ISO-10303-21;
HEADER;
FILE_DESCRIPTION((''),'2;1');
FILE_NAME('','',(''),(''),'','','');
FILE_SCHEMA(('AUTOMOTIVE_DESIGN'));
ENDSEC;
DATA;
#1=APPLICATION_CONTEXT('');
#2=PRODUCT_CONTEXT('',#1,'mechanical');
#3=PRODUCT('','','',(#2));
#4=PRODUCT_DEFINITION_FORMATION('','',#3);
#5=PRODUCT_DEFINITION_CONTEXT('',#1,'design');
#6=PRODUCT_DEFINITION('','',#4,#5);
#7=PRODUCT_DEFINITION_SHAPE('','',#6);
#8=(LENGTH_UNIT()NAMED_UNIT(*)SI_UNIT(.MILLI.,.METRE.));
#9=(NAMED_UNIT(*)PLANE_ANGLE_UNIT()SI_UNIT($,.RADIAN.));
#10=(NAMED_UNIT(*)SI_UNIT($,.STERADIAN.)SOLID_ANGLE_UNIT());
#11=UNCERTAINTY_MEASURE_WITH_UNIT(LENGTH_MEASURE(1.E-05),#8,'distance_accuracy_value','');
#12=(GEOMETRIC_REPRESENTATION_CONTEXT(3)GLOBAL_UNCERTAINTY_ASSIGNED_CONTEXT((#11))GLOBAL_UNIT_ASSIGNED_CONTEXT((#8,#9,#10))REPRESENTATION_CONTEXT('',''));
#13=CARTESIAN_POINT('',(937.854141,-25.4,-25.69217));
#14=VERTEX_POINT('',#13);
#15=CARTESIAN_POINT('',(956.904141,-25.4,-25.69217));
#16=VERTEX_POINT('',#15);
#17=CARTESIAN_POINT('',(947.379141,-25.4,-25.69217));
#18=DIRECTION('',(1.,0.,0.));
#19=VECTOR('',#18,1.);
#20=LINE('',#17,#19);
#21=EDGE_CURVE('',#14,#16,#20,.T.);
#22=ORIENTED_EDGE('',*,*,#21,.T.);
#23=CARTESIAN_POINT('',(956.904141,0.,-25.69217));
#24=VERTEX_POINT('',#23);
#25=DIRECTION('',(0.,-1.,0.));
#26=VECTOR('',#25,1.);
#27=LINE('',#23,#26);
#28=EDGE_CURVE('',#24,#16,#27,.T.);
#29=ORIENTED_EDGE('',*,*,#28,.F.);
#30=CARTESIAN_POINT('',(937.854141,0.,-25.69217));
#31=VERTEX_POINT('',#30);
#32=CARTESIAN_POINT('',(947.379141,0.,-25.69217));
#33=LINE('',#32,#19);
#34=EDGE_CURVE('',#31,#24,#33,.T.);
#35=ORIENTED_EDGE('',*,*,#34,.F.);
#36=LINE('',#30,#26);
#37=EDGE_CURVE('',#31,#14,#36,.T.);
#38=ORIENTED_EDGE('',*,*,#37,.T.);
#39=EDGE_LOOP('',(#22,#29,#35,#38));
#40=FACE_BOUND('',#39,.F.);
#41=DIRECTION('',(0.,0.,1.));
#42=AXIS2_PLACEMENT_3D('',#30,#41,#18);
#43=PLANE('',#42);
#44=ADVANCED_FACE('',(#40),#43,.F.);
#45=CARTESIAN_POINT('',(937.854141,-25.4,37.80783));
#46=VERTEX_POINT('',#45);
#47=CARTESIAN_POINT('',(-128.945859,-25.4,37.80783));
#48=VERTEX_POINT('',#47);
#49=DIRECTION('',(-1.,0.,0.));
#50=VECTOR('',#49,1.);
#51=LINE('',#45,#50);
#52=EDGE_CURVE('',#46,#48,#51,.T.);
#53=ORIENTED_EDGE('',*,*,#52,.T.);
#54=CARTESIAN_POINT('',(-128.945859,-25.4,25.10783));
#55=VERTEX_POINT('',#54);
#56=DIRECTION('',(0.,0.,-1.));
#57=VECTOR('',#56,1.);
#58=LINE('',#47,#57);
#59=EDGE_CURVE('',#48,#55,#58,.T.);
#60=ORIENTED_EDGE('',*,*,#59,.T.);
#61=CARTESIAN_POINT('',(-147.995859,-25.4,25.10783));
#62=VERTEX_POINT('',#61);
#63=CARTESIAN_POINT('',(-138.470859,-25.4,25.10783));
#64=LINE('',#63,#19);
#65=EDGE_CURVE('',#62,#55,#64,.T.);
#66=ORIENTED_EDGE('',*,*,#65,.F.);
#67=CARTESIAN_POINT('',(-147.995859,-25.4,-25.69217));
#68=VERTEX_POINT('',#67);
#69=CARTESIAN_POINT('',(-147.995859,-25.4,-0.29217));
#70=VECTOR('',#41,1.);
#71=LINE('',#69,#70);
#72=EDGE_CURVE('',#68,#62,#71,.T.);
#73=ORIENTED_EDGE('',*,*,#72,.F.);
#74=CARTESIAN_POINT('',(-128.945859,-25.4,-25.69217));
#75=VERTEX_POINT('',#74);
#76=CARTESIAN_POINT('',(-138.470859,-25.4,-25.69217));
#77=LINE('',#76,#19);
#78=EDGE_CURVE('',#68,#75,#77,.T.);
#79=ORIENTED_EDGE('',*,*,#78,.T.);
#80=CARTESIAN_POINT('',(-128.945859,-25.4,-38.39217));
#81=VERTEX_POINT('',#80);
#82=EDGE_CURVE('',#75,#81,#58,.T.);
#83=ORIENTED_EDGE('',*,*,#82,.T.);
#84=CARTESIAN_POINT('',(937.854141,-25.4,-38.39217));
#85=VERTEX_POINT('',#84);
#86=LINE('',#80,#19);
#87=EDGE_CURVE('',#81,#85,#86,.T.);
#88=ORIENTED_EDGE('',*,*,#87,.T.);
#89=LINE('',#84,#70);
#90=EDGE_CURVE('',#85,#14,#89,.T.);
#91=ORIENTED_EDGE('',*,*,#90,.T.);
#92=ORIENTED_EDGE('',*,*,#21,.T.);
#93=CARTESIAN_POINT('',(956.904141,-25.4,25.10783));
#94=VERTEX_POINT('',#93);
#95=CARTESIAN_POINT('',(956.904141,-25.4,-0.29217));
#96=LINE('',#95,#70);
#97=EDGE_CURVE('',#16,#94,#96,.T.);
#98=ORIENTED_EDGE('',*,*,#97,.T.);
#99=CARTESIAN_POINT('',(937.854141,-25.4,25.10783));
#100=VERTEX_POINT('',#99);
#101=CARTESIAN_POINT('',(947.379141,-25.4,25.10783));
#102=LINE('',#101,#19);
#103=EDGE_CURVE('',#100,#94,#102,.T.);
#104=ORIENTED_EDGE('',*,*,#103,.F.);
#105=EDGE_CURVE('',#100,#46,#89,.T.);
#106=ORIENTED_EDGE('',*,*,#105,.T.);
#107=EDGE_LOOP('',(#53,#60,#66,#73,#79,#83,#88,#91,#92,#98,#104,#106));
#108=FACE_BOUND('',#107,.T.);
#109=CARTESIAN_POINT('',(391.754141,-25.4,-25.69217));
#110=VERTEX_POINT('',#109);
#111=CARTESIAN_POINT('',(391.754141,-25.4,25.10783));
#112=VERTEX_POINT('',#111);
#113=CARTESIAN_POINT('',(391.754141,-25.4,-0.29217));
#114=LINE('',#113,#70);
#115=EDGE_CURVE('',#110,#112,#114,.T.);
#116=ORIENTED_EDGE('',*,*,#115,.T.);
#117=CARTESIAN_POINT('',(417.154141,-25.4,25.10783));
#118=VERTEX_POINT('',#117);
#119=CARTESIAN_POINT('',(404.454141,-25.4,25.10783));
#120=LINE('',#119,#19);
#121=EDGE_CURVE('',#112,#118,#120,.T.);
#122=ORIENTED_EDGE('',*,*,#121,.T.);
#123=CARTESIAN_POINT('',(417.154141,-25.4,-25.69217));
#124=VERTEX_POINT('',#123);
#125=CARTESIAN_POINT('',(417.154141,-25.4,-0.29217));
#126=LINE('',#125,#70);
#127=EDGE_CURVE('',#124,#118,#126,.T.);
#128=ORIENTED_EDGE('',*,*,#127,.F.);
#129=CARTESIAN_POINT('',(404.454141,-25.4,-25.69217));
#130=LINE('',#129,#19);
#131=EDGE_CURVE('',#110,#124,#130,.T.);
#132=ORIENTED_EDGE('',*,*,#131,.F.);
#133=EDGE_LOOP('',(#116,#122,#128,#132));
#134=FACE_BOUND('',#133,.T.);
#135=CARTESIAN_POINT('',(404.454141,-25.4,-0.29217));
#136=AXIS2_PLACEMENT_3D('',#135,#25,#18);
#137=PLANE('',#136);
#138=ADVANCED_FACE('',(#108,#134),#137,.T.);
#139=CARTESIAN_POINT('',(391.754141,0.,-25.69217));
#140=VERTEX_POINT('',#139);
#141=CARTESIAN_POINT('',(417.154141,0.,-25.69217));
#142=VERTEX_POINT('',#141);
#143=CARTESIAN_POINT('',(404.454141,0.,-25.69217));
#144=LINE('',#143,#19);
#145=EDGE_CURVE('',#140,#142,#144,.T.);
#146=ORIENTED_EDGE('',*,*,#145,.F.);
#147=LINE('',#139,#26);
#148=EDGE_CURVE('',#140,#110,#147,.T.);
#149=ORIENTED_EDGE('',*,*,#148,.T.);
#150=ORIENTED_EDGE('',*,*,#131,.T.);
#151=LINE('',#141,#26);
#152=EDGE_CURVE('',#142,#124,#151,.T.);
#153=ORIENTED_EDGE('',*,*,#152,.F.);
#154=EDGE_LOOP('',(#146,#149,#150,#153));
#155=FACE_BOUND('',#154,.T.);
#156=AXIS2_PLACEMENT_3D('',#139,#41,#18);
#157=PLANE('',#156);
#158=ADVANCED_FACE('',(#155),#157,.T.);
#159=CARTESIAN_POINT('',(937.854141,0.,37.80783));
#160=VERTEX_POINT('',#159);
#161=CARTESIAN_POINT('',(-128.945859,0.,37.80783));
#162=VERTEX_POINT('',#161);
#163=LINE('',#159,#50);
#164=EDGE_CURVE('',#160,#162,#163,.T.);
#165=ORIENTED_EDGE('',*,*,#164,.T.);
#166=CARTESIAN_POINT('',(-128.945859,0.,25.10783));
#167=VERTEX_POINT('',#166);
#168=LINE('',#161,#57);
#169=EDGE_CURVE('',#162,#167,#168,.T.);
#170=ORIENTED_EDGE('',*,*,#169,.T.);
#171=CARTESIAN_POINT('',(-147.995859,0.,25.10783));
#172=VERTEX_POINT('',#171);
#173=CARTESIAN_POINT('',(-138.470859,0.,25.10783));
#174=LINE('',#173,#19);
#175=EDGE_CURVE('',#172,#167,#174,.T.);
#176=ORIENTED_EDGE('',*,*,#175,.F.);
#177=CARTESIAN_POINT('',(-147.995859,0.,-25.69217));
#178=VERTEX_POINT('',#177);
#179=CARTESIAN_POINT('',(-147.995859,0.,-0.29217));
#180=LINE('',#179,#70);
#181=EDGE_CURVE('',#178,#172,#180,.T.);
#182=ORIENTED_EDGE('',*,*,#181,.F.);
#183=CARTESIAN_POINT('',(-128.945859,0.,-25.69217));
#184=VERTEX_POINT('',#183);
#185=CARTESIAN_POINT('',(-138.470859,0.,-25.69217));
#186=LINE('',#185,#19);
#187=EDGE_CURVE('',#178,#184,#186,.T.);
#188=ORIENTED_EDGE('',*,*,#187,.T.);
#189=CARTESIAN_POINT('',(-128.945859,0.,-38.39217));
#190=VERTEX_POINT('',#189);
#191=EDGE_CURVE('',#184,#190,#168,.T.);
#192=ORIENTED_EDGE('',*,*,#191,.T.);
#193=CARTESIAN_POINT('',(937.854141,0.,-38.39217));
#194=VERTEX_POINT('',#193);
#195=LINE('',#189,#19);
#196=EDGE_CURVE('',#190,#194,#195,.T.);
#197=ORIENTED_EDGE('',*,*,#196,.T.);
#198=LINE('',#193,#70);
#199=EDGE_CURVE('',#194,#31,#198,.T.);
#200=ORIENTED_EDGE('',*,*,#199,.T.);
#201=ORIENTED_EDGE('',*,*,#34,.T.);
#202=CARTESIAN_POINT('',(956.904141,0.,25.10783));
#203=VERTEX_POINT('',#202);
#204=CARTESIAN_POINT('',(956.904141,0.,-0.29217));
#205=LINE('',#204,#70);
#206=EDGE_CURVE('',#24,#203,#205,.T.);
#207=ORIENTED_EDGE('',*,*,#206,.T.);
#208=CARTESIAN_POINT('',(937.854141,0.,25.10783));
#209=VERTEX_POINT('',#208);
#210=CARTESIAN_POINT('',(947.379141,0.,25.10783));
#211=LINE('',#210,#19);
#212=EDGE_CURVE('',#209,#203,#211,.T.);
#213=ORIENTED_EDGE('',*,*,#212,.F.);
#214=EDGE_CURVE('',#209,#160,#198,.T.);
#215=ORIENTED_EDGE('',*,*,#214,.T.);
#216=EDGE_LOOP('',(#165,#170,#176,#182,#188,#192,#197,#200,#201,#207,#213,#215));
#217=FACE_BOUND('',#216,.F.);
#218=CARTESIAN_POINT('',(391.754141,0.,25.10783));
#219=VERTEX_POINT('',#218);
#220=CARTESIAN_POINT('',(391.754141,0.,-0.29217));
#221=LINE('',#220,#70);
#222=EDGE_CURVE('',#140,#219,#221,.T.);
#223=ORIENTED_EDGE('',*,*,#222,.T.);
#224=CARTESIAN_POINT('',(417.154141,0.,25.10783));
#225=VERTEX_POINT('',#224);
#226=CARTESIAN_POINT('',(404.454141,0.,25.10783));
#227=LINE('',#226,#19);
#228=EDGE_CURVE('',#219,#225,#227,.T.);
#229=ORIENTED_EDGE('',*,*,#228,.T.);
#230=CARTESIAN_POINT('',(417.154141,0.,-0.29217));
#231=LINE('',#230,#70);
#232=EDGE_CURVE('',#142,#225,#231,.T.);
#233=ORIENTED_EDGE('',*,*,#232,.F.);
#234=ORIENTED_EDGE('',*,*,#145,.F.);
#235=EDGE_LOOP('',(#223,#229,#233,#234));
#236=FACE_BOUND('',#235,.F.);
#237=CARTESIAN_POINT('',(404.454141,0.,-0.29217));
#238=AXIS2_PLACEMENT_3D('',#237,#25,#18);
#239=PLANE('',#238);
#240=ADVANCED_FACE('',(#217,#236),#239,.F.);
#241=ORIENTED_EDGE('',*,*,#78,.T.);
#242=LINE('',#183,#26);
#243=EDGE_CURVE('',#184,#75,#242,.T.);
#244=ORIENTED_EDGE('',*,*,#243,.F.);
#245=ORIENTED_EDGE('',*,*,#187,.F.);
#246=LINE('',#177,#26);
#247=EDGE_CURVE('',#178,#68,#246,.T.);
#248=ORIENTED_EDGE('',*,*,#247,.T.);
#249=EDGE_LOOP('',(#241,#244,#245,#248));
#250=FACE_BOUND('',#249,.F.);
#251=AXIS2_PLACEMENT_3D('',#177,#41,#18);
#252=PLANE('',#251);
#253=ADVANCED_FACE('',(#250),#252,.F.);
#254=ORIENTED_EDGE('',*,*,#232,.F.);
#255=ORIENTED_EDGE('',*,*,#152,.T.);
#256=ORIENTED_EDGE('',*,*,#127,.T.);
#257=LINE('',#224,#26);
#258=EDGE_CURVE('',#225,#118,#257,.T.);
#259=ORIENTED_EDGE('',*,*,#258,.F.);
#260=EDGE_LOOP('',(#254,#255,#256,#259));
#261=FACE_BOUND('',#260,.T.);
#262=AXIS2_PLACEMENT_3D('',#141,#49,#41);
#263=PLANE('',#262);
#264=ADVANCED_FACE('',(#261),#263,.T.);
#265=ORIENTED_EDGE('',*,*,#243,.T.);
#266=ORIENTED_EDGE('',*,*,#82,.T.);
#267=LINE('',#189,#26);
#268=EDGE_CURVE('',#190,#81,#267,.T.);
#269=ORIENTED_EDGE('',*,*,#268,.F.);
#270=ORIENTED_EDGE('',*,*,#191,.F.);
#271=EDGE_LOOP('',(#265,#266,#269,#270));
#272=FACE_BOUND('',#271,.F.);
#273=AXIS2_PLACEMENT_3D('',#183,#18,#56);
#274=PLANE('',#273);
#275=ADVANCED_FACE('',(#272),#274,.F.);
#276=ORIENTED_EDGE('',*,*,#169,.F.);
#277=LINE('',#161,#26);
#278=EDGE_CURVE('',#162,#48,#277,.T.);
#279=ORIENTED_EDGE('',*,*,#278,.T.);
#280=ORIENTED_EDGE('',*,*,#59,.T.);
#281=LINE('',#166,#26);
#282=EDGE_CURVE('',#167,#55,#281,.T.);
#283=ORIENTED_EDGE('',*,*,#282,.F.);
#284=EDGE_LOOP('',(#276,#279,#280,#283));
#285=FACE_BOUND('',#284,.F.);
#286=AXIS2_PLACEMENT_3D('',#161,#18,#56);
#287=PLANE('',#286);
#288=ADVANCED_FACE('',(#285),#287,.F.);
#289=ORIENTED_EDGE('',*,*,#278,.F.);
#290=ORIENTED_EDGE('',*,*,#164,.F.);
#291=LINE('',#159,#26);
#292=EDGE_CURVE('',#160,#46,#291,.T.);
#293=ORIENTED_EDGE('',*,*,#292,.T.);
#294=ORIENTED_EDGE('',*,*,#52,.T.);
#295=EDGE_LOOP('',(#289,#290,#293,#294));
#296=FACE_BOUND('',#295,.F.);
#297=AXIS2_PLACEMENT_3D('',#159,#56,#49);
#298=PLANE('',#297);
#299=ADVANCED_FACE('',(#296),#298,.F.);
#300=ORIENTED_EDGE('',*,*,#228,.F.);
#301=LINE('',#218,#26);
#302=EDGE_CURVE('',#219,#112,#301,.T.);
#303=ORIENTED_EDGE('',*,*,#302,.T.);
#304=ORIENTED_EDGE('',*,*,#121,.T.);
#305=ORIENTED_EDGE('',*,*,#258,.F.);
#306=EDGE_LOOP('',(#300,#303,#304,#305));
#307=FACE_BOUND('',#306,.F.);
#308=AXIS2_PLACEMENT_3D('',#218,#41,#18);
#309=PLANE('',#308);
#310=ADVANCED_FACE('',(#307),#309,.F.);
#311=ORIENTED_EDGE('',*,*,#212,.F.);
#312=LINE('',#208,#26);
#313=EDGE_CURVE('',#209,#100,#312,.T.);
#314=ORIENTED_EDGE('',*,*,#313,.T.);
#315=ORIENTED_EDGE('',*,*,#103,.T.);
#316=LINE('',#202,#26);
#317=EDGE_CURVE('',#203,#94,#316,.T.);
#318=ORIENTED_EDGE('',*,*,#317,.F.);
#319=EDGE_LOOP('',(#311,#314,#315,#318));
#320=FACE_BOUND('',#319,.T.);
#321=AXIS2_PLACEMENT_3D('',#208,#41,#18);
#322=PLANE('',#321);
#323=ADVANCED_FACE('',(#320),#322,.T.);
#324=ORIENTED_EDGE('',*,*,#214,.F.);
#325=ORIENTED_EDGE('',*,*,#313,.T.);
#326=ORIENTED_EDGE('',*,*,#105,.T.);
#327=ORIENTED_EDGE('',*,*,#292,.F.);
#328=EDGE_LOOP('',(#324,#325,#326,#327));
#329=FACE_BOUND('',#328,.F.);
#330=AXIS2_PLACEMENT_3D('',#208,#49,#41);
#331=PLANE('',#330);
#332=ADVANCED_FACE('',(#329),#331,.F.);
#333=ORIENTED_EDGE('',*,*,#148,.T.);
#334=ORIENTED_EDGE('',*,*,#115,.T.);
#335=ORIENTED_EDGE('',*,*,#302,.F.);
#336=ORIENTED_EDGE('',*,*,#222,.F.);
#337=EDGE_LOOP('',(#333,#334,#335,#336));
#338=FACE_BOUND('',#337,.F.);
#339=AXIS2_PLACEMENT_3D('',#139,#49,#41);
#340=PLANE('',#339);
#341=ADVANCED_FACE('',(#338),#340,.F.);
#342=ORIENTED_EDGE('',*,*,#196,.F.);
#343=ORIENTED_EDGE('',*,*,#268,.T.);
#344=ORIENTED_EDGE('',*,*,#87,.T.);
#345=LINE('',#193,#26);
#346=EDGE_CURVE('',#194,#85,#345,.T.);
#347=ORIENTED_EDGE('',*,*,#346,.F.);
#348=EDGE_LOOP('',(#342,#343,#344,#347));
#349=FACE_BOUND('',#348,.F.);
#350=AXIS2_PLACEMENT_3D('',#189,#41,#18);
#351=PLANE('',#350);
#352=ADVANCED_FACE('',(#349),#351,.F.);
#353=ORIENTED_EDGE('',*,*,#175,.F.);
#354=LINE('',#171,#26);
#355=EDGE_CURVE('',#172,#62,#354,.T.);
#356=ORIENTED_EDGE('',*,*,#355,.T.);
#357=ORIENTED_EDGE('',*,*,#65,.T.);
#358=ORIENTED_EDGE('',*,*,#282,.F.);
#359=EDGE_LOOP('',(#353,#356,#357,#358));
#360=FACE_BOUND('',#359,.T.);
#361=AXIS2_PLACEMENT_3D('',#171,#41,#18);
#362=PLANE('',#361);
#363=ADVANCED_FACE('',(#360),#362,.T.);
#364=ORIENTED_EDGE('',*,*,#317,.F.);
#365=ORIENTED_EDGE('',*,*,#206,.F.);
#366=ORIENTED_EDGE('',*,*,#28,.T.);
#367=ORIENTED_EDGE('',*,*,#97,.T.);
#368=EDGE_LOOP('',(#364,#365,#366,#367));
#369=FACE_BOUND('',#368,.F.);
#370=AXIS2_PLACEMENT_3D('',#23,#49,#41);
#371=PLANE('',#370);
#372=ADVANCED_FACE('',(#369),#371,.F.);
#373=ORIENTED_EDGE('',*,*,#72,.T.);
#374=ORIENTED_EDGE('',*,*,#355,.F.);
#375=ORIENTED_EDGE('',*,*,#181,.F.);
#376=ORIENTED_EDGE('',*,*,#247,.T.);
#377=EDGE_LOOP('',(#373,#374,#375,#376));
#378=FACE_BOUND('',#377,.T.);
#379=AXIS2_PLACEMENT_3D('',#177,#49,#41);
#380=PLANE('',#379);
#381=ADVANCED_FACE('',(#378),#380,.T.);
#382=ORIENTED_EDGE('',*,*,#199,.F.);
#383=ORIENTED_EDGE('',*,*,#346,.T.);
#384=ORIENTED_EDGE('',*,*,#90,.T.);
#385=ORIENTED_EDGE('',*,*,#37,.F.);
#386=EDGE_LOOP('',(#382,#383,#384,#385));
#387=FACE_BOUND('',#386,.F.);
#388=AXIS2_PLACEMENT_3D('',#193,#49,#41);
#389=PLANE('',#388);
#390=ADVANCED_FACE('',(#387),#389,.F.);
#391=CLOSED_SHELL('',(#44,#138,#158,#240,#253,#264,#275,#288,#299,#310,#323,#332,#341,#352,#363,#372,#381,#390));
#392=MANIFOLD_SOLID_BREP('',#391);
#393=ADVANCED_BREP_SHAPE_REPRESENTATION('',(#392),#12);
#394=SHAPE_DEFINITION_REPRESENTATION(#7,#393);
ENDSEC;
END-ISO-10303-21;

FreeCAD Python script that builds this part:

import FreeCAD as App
import Part
import Sketcher

V = App.Vector
Q = App.Units.Quantity


def add_polygon(sketch, points):
    """Adds a closed chain of lines whose ends are joined by coincident constraints."""
    first, n = sketch.GeometryCount, len(points)
    for a, b in zip(points, points[1:] + points[:1]):
        sketch.addGeometry(Part.LineSegment(App.Vector(*a, 0), App.Vector(*b, 0)), False)
    for i in range(n):
        sketch.addConstraint(Sketcher.Constraint("Coincident", first + i, 2, first + (i + 1) % n, 1))

doc = App.newDocument("Part")
body = doc.addObject("PartDesign::Body", "Body")

sketch1 = doc.addObject("Sketcher::SketchObject", "Sketch")
body.addObject(sketch1)
sketch1.AttachmentSupport = (doc.XZ_Plane, [""])
sketch1.MapMode = "FlatFace"
add_polygon(sketch1, [(937.854141, 37.80783), (-128.945859, 37.80783), (-128.945859, 25.10783), (-147.995859, 25.10783), (-147.995859, -25.69217), (-128.945859, -25.69217), (-128.945859, -38.39217), (937.854141, -38.39217), (937.854141, -25.69217), (956.904141, -25.69217), (956.904141, 25.10783), (937.854141, 25.10783)])
add_polygon(sketch1, [(417.154141, -25.69217), (391.754141, -25.69217), (391.754141, 25.10783), (417.154141, 25.10783)])
sketch1.addConstraint(Sketcher.Constraint("Horizontal", 0))
sketch1.addConstraint(Sketcher.Constraint("Vertical", 1))
sketch1.addConstraint(Sketcher.Constraint("Horizontal", 2))
sketch1.addConstraint(Sketcher.Constraint("Vertical", 3))
sketch1.addConstraint(Sketcher.Constraint("Horizontal", 4))
sketch1.addConstraint(Sketcher.Constraint("Vertical", 5))
sketch1.addConstraint(Sketcher.Constraint("Horizontal", 6))
sketch1.addConstraint(Sketcher.Constraint("Vertical", 7))
sketch1.addConstraint(Sketcher.Constraint("Horizontal", 8))
sketch1.addConstraint(Sketcher.Constraint("Vertical", 9))
sketch1.addConstraint(Sketcher.Constraint("Horizontal", 10))
sketch1.addConstraint(Sketcher.Constraint("Vertical", 11))
sketch1.addConstraint(Sketcher.Constraint("Horizontal", 12))
sketch1.addConstraint(Sketcher.Constraint("Vertical", 13))
sketch1.addConstraint(Sketcher.Constraint("Horizontal", 14))
sketch1.addConstraint(Sketcher.Constraint("Vertical", 15))
sketch1.addConstraint(Sketcher.Constraint("Horizontal", 4, 2, 7, 2))
sketch1.addConstraint(Sketcher.Constraint("Horizontal", 2, 2, 9, 2))
sketch1.addConstraint(Sketcher.Constraint("Horizontal", 8, 2, 12, 2))
sketch1.addConstraint(Sketcher.Constraint("Horizontal", 10, 2, 13, 2))
sketch1.addConstraint(Sketcher.Constraint("Vertical", 1, 2, 4, 2))
sketch1.addConstraint(Sketcher.Constraint("Vertical", 7, 2, 10, 2))
sketch1.addConstraint(Sketcher.Constraint("Equal", 4, 8))
sketch1.addConstraint(Sketcher.Constraint("Equal", 1, 5))
sketch1.addConstraint(Sketcher.Constraint("DistanceX", 0, 2, 0, 1, Q("42 in")))
sketch1.addConstraint(Sketcher.Constraint("DistanceX", 12, 2, 12, 1, Q("1 in")))
sketch1.addConstraint(Sketcher.Constraint("DistanceY", 3, 2, 3, 1, Q("2 in")))
sketch1.addConstraint(Sketcher.Constraint("DistanceY", 1, 2, 1, 1, Q("0.5 in")))
sketch1.addConstraint(Sketcher.Constraint("DistanceX", 2, 2, 2, 1, Q("0.75 in")))
sketch1.addConstraint(Sketcher.Constraint("DistanceX", 4, 2, 12, 2, Q("20.5 in")))
sketch1.addConstraint(Sketcher.Constraint("DistanceX", 0, 2, -1, 1, 128.945859))
sketch1.addConstraint(Sketcher.Constraint("DistanceY", -1, 1, 0, 2, 37.80783))
pad1 = doc.addObject("PartDesign::Pad", "Pad")
body.addObject(pad1)
pad1.Profile = sketch1
pad1.Length = Q("1 in")

doc.recompute()
